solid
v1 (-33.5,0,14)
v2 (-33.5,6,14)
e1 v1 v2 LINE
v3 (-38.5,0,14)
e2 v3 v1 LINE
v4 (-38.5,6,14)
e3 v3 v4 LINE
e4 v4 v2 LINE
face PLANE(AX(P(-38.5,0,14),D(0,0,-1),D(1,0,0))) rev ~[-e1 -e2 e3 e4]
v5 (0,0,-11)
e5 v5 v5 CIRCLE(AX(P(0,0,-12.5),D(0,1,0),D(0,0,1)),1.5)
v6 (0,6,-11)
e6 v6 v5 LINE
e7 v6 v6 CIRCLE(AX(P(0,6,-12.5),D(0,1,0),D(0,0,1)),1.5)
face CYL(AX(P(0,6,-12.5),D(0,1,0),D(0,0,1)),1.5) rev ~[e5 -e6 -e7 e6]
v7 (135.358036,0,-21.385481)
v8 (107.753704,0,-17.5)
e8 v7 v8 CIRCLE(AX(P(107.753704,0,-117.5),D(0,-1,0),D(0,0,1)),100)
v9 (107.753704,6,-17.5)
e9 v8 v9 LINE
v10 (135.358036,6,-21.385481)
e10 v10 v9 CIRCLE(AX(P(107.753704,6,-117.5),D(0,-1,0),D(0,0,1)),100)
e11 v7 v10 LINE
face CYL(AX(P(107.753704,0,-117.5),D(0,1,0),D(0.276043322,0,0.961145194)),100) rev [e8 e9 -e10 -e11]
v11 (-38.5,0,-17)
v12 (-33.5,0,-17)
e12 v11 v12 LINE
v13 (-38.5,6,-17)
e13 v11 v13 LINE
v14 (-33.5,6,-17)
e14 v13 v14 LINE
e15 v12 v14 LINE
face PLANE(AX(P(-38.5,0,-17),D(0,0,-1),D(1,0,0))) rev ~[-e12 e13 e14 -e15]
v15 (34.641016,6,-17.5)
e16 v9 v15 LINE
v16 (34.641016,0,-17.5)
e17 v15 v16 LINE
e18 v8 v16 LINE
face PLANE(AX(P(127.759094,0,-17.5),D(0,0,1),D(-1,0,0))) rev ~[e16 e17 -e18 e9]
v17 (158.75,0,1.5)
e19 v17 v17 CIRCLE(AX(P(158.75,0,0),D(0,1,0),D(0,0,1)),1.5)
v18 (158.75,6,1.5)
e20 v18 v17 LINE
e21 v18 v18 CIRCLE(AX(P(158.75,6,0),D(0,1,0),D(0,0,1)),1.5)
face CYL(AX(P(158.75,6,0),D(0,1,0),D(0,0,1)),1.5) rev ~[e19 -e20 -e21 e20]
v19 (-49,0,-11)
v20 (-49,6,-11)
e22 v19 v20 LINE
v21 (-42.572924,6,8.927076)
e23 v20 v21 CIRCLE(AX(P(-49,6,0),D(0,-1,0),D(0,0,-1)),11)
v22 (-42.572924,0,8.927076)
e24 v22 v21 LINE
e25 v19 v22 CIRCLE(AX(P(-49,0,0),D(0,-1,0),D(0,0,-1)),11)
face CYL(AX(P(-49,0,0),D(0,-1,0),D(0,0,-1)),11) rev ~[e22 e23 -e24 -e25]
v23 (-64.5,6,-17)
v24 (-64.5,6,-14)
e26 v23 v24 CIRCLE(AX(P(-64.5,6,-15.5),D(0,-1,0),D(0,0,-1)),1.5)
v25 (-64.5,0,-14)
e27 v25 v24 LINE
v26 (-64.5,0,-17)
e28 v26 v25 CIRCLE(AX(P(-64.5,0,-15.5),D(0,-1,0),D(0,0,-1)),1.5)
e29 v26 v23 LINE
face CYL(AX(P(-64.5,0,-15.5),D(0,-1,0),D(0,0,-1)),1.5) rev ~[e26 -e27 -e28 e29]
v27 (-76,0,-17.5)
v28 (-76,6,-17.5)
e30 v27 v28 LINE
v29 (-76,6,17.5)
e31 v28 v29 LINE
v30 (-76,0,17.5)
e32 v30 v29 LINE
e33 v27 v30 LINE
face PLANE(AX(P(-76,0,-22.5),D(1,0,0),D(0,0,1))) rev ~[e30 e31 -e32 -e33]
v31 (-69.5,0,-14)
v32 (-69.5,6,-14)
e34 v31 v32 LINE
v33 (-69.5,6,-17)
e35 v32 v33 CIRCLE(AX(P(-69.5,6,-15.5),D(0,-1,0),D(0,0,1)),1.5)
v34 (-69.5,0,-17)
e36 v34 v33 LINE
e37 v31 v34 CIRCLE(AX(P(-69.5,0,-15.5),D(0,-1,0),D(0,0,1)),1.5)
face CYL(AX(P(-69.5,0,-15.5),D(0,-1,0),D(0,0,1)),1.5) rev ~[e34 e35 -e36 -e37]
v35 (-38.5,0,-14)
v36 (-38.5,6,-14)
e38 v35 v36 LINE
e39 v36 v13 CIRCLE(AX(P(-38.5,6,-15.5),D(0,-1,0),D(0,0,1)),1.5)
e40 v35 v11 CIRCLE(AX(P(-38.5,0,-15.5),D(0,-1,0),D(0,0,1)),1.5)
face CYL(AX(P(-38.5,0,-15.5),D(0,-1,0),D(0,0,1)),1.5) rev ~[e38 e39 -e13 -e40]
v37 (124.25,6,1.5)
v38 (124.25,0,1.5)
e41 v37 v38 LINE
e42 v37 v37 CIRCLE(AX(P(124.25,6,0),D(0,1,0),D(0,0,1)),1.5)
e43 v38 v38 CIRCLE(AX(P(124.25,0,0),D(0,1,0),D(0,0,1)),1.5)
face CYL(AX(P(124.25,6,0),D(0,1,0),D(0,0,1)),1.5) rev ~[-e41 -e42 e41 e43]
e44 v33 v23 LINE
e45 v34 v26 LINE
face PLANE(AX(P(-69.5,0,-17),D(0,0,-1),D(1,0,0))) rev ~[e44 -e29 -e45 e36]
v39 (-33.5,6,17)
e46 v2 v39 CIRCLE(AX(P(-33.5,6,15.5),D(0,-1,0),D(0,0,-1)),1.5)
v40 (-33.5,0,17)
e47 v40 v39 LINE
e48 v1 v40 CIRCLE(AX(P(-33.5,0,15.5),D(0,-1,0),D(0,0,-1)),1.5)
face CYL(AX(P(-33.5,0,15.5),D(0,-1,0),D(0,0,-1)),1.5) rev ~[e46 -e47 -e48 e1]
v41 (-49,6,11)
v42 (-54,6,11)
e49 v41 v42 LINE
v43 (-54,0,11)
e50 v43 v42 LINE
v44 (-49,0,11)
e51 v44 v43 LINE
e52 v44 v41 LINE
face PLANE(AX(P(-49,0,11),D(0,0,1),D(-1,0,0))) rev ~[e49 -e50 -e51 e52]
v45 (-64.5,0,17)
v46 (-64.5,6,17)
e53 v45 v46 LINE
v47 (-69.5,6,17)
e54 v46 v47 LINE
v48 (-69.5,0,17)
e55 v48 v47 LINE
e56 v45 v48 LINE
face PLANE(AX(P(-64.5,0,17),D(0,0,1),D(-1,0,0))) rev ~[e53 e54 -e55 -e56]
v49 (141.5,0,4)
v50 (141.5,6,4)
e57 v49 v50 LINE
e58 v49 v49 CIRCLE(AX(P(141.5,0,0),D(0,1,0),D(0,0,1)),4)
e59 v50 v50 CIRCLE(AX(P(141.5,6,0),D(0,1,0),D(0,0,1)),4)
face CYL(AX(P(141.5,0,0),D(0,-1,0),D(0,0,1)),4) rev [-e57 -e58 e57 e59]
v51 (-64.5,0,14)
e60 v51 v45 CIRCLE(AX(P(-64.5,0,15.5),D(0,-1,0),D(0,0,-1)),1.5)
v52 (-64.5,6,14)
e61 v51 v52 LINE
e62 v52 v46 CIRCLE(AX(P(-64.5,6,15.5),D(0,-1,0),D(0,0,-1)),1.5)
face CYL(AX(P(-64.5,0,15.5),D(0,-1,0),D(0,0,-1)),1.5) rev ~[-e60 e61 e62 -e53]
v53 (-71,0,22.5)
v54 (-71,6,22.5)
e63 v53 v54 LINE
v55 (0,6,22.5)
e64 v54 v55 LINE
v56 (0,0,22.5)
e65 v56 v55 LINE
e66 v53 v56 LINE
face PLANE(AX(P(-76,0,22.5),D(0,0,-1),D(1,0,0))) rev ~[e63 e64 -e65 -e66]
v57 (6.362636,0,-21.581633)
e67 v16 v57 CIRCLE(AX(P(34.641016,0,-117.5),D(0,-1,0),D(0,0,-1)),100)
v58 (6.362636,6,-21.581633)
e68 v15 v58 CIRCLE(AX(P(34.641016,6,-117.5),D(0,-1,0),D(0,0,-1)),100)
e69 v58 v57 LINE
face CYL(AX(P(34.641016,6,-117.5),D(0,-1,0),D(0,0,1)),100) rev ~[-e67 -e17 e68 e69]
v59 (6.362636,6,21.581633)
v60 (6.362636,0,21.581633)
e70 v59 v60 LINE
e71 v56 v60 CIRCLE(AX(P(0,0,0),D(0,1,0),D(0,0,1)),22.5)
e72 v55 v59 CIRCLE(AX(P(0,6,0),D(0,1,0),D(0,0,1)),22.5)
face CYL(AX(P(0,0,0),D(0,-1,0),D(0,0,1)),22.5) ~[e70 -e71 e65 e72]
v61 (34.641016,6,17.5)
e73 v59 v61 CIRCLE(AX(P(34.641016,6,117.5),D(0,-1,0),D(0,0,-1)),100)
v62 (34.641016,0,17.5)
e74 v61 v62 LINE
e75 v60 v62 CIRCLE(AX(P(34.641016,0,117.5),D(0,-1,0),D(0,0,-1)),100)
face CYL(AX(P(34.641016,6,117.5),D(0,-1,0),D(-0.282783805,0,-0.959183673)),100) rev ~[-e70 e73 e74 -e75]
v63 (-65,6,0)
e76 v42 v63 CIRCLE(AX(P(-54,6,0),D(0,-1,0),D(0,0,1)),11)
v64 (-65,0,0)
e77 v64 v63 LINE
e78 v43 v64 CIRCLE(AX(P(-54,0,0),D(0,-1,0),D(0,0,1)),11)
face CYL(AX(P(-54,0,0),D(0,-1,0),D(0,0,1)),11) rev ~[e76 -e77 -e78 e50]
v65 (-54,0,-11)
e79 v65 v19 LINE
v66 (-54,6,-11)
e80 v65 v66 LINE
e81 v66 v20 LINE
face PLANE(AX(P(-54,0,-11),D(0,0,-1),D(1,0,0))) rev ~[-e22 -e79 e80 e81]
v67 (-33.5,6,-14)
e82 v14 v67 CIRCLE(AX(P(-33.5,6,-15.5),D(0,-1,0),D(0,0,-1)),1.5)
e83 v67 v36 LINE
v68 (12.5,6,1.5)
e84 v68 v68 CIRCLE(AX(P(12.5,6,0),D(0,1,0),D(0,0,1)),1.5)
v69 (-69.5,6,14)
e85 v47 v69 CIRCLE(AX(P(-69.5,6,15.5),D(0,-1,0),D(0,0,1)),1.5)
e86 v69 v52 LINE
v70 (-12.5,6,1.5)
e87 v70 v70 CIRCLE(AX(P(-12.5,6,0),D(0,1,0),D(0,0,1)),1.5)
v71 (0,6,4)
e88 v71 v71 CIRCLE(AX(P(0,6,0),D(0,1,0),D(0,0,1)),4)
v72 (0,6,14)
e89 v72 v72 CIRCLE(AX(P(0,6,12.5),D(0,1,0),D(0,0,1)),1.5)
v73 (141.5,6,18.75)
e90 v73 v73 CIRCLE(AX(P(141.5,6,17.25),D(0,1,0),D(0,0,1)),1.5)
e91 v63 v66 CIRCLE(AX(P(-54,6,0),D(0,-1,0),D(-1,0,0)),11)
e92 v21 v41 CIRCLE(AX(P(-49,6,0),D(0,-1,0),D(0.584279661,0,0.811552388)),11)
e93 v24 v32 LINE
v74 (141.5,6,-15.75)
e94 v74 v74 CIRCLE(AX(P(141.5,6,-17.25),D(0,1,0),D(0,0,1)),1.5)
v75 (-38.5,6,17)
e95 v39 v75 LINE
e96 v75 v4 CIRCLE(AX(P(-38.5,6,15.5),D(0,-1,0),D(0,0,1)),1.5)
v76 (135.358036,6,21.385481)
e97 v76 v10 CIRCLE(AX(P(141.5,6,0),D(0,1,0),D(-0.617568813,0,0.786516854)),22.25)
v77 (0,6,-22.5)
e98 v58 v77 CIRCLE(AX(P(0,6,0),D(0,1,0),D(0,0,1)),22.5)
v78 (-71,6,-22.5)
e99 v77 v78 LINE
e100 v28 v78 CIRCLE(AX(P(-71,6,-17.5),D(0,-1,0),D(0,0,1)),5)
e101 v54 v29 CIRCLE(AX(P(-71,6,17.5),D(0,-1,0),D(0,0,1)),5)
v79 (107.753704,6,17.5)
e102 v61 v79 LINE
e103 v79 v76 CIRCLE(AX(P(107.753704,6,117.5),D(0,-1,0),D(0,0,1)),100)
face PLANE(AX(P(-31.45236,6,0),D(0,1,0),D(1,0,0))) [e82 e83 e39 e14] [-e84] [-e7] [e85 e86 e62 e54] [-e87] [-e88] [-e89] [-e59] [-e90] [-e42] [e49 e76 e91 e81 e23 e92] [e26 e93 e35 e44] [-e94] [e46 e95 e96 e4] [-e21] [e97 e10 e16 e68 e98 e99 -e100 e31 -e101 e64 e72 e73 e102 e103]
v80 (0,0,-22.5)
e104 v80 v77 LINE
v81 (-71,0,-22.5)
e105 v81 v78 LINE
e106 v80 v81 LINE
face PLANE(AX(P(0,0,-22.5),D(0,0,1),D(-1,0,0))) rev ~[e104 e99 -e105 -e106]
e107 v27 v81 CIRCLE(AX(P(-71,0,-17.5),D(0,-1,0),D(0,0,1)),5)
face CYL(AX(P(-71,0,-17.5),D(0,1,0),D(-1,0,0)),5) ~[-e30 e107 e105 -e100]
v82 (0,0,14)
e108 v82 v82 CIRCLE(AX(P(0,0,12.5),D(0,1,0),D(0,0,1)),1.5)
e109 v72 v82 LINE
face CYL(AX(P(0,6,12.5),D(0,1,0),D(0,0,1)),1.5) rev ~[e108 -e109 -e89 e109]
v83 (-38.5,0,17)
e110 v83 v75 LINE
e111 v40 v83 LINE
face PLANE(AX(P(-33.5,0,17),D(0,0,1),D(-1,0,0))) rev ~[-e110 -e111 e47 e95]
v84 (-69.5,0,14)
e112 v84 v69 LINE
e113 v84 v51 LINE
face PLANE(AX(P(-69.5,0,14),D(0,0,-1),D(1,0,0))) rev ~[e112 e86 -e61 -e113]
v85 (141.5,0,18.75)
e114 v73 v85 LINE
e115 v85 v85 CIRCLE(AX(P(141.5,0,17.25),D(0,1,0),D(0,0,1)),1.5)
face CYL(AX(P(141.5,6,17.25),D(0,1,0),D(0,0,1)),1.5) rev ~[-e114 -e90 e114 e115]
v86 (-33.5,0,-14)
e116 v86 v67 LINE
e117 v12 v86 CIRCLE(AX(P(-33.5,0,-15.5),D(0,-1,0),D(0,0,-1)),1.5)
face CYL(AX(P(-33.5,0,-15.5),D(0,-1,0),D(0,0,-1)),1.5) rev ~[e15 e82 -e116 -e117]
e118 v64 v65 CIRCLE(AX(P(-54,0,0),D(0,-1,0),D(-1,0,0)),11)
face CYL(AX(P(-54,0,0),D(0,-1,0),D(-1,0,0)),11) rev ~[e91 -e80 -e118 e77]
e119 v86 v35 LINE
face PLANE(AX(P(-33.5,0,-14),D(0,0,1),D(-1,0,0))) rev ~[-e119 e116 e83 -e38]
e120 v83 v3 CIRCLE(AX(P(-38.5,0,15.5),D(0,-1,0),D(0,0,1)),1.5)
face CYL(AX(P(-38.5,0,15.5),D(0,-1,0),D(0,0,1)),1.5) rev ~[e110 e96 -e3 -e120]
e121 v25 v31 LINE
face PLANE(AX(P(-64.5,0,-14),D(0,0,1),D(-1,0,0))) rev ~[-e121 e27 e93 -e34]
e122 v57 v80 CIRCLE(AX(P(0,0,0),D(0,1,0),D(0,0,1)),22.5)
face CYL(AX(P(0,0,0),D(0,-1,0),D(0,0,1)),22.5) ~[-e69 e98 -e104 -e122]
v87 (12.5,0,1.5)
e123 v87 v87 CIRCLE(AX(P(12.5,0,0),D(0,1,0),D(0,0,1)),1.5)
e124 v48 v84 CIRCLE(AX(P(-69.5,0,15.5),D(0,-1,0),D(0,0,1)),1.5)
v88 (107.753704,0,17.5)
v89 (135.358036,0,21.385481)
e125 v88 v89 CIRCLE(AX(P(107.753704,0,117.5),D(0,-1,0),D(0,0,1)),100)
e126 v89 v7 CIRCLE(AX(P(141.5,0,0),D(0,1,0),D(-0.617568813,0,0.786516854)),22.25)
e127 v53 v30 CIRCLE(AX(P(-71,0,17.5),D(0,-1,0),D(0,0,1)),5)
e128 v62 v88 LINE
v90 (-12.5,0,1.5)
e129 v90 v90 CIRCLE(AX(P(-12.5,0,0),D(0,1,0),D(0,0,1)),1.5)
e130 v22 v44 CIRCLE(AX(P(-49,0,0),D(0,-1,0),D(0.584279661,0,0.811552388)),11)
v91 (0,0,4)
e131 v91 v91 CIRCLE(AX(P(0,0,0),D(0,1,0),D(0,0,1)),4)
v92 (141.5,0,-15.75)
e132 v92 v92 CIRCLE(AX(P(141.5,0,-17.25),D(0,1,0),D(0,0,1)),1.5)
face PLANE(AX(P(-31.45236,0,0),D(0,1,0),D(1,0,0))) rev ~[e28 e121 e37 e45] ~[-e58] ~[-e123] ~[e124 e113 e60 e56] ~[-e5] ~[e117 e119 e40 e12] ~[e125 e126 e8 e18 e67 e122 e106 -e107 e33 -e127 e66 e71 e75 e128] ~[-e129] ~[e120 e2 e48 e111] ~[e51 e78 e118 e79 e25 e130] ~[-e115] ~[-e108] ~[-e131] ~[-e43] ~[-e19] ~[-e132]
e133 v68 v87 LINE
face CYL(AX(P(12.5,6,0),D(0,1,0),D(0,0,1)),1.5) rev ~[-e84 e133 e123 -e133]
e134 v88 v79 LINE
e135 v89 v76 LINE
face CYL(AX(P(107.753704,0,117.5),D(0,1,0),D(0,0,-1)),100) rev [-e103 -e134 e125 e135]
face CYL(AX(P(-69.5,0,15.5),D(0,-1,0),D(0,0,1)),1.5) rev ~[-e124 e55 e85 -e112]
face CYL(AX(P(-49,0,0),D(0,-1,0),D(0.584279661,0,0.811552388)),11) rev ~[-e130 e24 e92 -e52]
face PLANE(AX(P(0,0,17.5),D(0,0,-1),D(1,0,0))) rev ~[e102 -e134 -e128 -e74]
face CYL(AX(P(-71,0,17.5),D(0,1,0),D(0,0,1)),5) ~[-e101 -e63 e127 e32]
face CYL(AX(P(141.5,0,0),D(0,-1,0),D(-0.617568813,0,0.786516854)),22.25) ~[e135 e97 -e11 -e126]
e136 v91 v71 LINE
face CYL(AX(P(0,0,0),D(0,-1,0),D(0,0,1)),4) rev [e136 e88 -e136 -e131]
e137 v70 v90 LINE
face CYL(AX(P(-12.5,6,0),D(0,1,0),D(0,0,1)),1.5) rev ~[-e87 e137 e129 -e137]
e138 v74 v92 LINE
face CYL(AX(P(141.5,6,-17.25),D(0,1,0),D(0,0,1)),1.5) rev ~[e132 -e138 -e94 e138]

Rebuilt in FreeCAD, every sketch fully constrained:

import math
import FreeCAD as App
import Part
import Sketcher

V = App.Vector


def edges_at(feature, points):
    """Names of the edges that pass closest to the given points."""
    edges = feature.Shape.Edges
    near = lambda p: min(range(len(edges)), key=lambda i: edges[i].distToShape(Part.Vertex(*p))[0])
    return sorted({f"Edge{near(p) + 1}" for p in points})

doc = App.newDocument("Part")
body = doc.addObject("PartDesign::Body", "Body")

sketch1 = body.newObject("Sketcher::SketchObject", "Sketch")
sketch1.AttachmentSupport = (doc.getObject("XZ_Plane"), [""])
sketch1.MapMode = "FlatFace"
sketch1.addGeometry([
    Part.LineSegment(V(0, 17.5, 0), V(127.8, 17.5, 0)),
    Part.ArcOfCircle(Part.Circle(V(141.5, 0, 0), V(0, 0, 1), 22.2), math.radians(-128), math.radians(128)),
    Part.LineSegment(V(127.8, -17.5, 0), V(0, -17.5, 0)),
    Part.ArcOfCircle(Part.Circle(V(0, 0, 0), V(0, 0, 1), 17.5), math.radians(90), math.radians(270)),
    Part.Circle(V(0, 0, 0), V(0, 0, 1), 4),
    Part.Circle(V(141.5, 0, 0), V(0, 0, 1), 4),
], False)
sketch1.addConstraint([
    Sketcher.Constraint("Coincident", 0, 2, 1, 2),
    Sketcher.Constraint("Coincident", 1, 1, 2, 1),
    Sketcher.Constraint("Tangent", 2, 2, 3, 2),
    Sketcher.Constraint("Tangent", 3, 1, 0, 1),
    Sketcher.Constraint("Horizontal", 0),
    Sketcher.Constraint("Horizontal", 2),
    Sketcher.Constraint("Coincident", 3, 3, -1, 1),
    Sketcher.Constraint("Coincident", 4, 3, -1, 1),
    Sketcher.Constraint("Coincident", 5, 3, 1, 3),
    Sketcher.Constraint("Equal", 4, 5),
    Sketcher.Constraint("PointOnObject", 1, 3, -1),
    Sketcher.Constraint("Diameter", 4, 8.0),
    Sketcher.Constraint("Radius", 3, 17.5),
    Sketcher.Constraint("Radius", 1, 22.25),
    Sketcher.Constraint("DistanceX", -1, 1, 1, 3, 141.5),
])
pad1 = body.newObject("PartDesign::Pad", "Pad")
pad1.Profile = sketch1
pad1.Length = 6
pad1.Reversed = True

sketch2 = body.newObject("Sketcher::SketchObject", "Sketch001")
sketch2.AttachmentSupport = (doc.getObject("XZ_Plane"), [""])
sketch2.MapMode = "FlatFace"
sketch2.addGeometry([
    Part.ArcOfCircle(Part.Circle(V(0, 0, 0), V(0, 0, 1), 22.5), math.radians(-90), math.radians(90)),
    Part.LineSegment(V(0, -22.5, 0), V(-76, -22.5, 0)),
    Part.LineSegment(V(-76, -22.5, 0), V(-76, 22.5, 0)),
    Part.LineSegment(V(-76, 22.5, 0), V(0, 22.5, 0)),
    Part.ArcOfCircle(Part.Circle(V(-64.5, 15.5, 0), V(0, 0, 1), 1.5), math.radians(-90), math.radians(90)),
    Part.LineSegment(V(-64.5, 17, 0), V(-69.5, 17, 0)),
    Part.ArcOfCircle(Part.Circle(V(-69.5, 15.5, 0), V(0, 0, 1), 1.5), math.radians(90), math.radians(270)),
    Part.LineSegment(V(-69.5, 14, 0), V(-64.5, 14, 0)),
    Part.ArcOfCircle(Part.Circle(V(-38.5, 15.5, 0), V(0, 0, 1), 1.5), math.radians(90), math.radians(270)),
    Part.LineSegment(V(-38.5, 14, 0), V(-33.5, 14, 0)),
    Part.ArcOfCircle(Part.Circle(V(-33.5, 15.5, 0), V(0, 0, 1), 1.5), math.radians(-90), math.radians(90)),
    Part.LineSegment(V(-33.5, 17, 0), V(-38.5, 17, 0)),
    Part.LineSegment(V(-54, -11, 0), V(-49, -11, 0)),
    Part.ArcOfCircle(Part.Circle(V(-49, 0, 0), V(0, 0, 1), 11), math.radians(-90), math.radians(54)),
    Part.ArcOfCircle(Part.Circle(V(-49, 0, 0), V(0, 0, 1), 11), math.radians(54), math.radians(90)),
    Part.LineSegment(V(-49, 11, 0), V(-54, 11, 0)),
    Part.ArcOfCircle(Part.Circle(V(-54, 0, 0), V(0, 0, 1), 11), math.radians(90), math.radians(180)),
    Part.ArcOfCircle(Part.Circle(V(-54, 0, 0), V(0, 0, 1), 11), math.radians(180), math.radians(270)),
    Part.LineSegment(V(-69.5, -17, 0), V(-64.5, -17, 0)),
    Part.ArcOfCircle(Part.Circle(V(-64.5, -15.5, 0), V(0, 0, 1), 1.5), math.radians(-90), math.radians(90)),
    Part.LineSegment(V(-64.5, -14, 0), V(-69.5, -14, 0)),
    Part.ArcOfCircle(Part.Circle(V(-69.5, -15.5, 0), V(0, 0, 1), 1.5), math.radians(90), math.radians(270)),
    Part.LineSegment(V(-38.5, -17, 0), V(-33.5, -17, 0)),
    Part.ArcOfCircle(Part.Circle(V(-33.5, -15.5, 0), V(0, 0, 1), 1.5), math.radians(-90), math.radians(90)),
    Part.LineSegment(V(-33.5, -14, 0), V(-38.5, -14, 0)),
    Part.ArcOfCircle(Part.Circle(V(-38.5, -15.5, 0), V(0, 0, 1), 1.5), math.radians(90), math.radians(270)),
    Part.Circle(V(0, 0, 0), V(0, 0, 1), 4),
], False)
sketch2.addConstraint([
    Sketcher.Constraint("Tangent", 0, 1, 1, 1),
    Sketcher.Constraint("Coincident", 1, 2, 2, 1),
    Sketcher.Constraint("Coincident", 2, 2, 3, 1),
    Sketcher.Constraint("Tangent", 3, 2, 0, 2),
    Sketcher.Constraint("Tangent", 4, 2, 5, 1),
    Sketcher.Constraint("Tangent", 5, 2, 6, 1),
    Sketcher.Constraint("Tangent", 6, 2, 7, 1),
    Sketcher.Constraint("Tangent", 7, 2, 4, 1),
    Sketcher.Constraint("Tangent", 8, 2, 9, 1),
    Sketcher.Constraint("Tangent", 9, 2, 10, 1),
    Sketcher.Constraint("Tangent", 10, 2, 11, 1),
    Sketcher.Constraint("Tangent", 11, 2, 8, 1),
    Sketcher.Constraint("Tangent", 12, 2, 13, 1),
    Sketcher.Constraint("Tangent", 13, 2, 14, 1),
    Sketcher.Constraint("Tangent", 14, 2, 15, 1),
    Sketcher.Constraint("Tangent", 15, 2, 16, 1),
    Sketcher.Constraint("Tangent", 16, 2, 17, 1),
    Sketcher.Constraint("Tangent", 17, 2, 12, 1),
    Sketcher.Constraint("Tangent", 18, 2, 19, 1),
    Sketcher.Constraint("Tangent", 19, 2, 20, 1),
    Sketcher.Constraint("Tangent", 20, 2, 21, 1),
    Sketcher.Constraint("Tangent", 21, 2, 18, 1),
    Sketcher.Constraint("Tangent", 22, 2, 23, 1),
    Sketcher.Constraint("Tangent", 23, 2, 24, 1),
    Sketcher.Constraint("Tangent", 24, 2, 25, 1),
    Sketcher.Constraint("Tangent", 25, 2, 22, 1),
    Sketcher.Constraint("Horizontal", 1),
    Sketcher.Constraint("Vertical", 2),
    Sketcher.Constraint("Horizontal", 3),
    Sketcher.Constraint("Horizontal", 5),
    Sketcher.Constraint("Horizontal", 7),
    Sketcher.Constraint("Horizontal", 9),
    Sketcher.Constraint("Horizontal", 11),
    Sketcher.Constraint("Horizontal", 12),
    Sketcher.Constraint("Horizontal", 15),
    Sketcher.Constraint("Horizontal", 18),
    Sketcher.Constraint("Horizontal", 20),
    Sketcher.Constraint("Horizontal", 22),
    Sketcher.Constraint("Horizontal", 24),
    Sketcher.Constraint("Coincident", 0, 3, -1, 1),
    Sketcher.Constraint("Coincident", 26, 3, -1, 1),
    Sketcher.Constraint("Equal", 6, 8),
    Sketcher.Constraint("Equal", 13, 14),
    Sketcher.Constraint("Equal", 14, 16),
    Sketcher.Constraint("Equal", 10, 19),
    Sketcher.Constraint("Equal", 21, 23),
    Sketcher.Constraint("Symmetric", 4, 3, 19, 3, -1),
    Sketcher.Constraint("Symmetric", 10, 3, 23, 3, -1),
    Sketcher.Constraint("PointOnObject", 13, 3, -1),
    Sketcher.Constraint("PointOnObject", 16, 2, -1),
    Sketcher.Constraint("Horizontal", 6, 3, 8, 3),
    Sketcher.Constraint("Vertical", 6, 3, 21, 3),
    Sketcher.Constraint("Vertical", 8, 3, 25, 3),
    Sketcher.Constraint("Equal", 7, 9),
    Sketcher.Constraint("Equal", 11, 12),
    Sketcher.Constraint("Diameter", 26, 8.0),
    Sketcher.Constraint("Radius", 13, 11.0),
    Sketcher.Constraint("Radius", 0, 22.5),
    Sketcher.Constraint("Radius", 4, 1.5),
    Sketcher.Constraint("DistanceX", 1, 2, 1, 1, 76.0),
    Sketcher.Constraint("DistanceX", 5, 2, 5, 1, 5.0),
    Sketcher.Constraint("DistanceX", 13, 3, -1, 1, 49.0),
    Sketcher.Constraint("DistanceY", -1, 1, 4, 2, 17.0),
    Sketcher.Constraint("DistanceX", 4, 3, 8, 3, 26.0),
    Sketcher.Constraint("DistanceX", 4, 3, -1, 1, 64.5),
    Sketcher.Constraint("DistanceX", 13, 2, -1, 1, 42.572924),
])
pad2 = body.newObject("PartDesign::Pad", "Pad001")
pad2.Profile = sketch2
pad2.Length = 6
pad2.Reversed = True
doc.recompute()

fillet = body.newObject("PartDesign::Fillet", "Fillet")
fillet.Base = (pad2, edges_at(pad2, [(-76, 3, 22.5), (-76, 3, -22.5)]))
fillet.Radius = 5

sketch3 = body.newObject("Sketcher::SketchObject", "Sketch002")
sketch3.AttachmentSupport = (doc.getObject("XZ_Plane"), [""])
sketch3.MapMode = "FlatFace"
sketch3.AttachmentOffset = App.Placement(V(0, 0, -6), App.Rotation())
sketch3.addGeometry([
    Part.Circle(V(0, -12.5, 0), V(0, 0, 1), 1.5),
    Part.Circle(V(12.5, 0, 0), V(0, 0, 1), 1.5),
    Part.Circle(V(0, 12.5, 0), V(0, 0, 1), 1.5),
    Part.Circle(V(-12.5, 0, 0), V(0, 0, 1), 1.5),
], False)
sketch3.addConstraint([
    Sketcher.Constraint("Equal", 0, 1),
    Sketcher.Constraint("Equal", 1, 2),
    Sketcher.Constraint("Equal", 2, 3),
    Sketcher.Constraint("Symmetric", 0, 3, 2, 3, -1, 1),
    Sketcher.Constraint("Symmetric", 1, 3, 3, 3, -1, 1),
    Sketcher.Constraint("PointOnObject", 0, 3, -2),
    Sketcher.Constraint("PointOnObject", 1, 3, -1),
    Sketcher.Constraint("Diameter", 0, 3.0),
    Sketcher.Constraint("DistanceY", 0, 3, 2, 3, 25.0),
    Sketcher.Constraint("DistanceX", 3, 3, 1, 3, 25.0),
])
pocket1 = body.newObject("PartDesign::Pocket", "Pocket")
pocket1.Profile = sketch3
pocket1.Length = 19
pocket1.Reversed = True

sketch4 = body.newObject("Sketcher::SketchObject", "Sketch003")
sketch4.AttachmentSupport = (doc.getObject("XZ_Plane"), [""])
sketch4.MapMode = "FlatFace"
sketch4.AttachmentOffset = App.Placement(V(0, 0, -6), App.Rotation())
sketch4.addGeometry([
    Part.Circle(V(158.8, 0, 0), V(0, 0, 1), 1.5),
    Part.Circle(V(141.5, 17.2, 0), V(0, 0, 1), 1.5),
    Part.Circle(V(124.2, 0, 0), V(0, 0, 1), 1.5),
    Part.Circle(V(141.5, -17.2, 0), V(0, 0, 1), 1.5),
], False)
sketch4.addConstraint([
    Sketcher.Constraint("Equal", 0, 1),
    Sketcher.Constraint("Equal", 1, 2),
    Sketcher.Constraint("Equal", 2, 3),
    Sketcher.Constraint("Symmetric", 1, 3, 3, 3, -1),
    Sketcher.Constraint("PointOnObject", 0, 3, -1),
    Sketcher.Constraint("PointOnObject", 2, 3, -1),
    Sketcher.Constraint("Diameter", 0, 3.0),
    Sketcher.Constraint("DistanceX", -1, 1, 1, 3, 141.5),
    Sketcher.Constraint("DistanceX", 2, 3, 0, 3, 34.5),
    Sketcher.Constraint("DistanceY", 3, 3, 1, 3, 34.5),
    Sketcher.Constraint("DistanceX", -1, 1, 0, 3, 158.75),
])
pocket2 = body.newObject("PartDesign::Pocket", "Pocket001")
pocket2.Profile = sketch4
pocket2.Length = 19
pocket2.Reversed = True
doc.recompute()

fillet2 = body.newObject("PartDesign::Fillet", "Fillet001")
fillet2.Base = (pocket2, edges_at(pocket2, [
    (127.759, 3, -17.5),
    (127.759, 3, 17.5),
    (14.142, 3, -17.5),
    (14.142, 3, 17.5),
]))
fillet2.Radius = 100

doc.recompute()
